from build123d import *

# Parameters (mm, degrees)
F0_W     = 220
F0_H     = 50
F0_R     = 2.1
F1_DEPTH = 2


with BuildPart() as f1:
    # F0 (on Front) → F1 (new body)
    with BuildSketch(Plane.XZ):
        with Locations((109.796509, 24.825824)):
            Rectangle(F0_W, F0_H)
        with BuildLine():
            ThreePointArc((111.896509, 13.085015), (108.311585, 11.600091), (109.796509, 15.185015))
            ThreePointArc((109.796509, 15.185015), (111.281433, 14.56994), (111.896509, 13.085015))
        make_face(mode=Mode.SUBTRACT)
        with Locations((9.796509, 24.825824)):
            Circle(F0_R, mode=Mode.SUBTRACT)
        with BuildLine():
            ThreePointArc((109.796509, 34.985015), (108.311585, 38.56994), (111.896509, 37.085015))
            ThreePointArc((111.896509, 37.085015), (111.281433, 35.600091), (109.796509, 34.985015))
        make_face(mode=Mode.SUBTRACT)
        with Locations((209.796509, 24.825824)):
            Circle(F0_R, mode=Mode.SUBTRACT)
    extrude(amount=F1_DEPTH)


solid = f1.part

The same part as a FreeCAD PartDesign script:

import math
import FreeCAD as App
import Part
import Sketcher
from FreeCAD import Vector

doc = App.newDocument("Part")
body = doc.addObject("PartDesign::Body", "Body")

# Sketch on XZ plane
sketch1 = doc.addObject("Sketcher::SketchObject", "Sketch")
body.addObject(sketch1)
sketch1.AttachmentSupport = (doc.XZ_Plane, [""])
sketch1.MapMode = "FlatFace"
sketch1.addGeometry([
    Part.LineSegment(Vector(-0.203491, 49.825824, 0), Vector(-0.203491, -0.174176, 0)),  # 0
    Part.LineSegment(Vector(-0.203491, -0.174176, 0), Vector(219.796509, -0.174176, 0)),  # 1
    Part.LineSegment(Vector(219.796509, -0.174176, 0), Vector(219.796509, 49.825824, 0)),  # 2
    Part.LineSegment(Vector(219.796509, 49.825824, 0), Vector(-0.203491, 49.825824, 0)),  # 3
    Part.Circle(Vector(9.796509, 24.825824, 0), Vector(0, 0, 1), 2.1),  # 4
    Part.ArcOfCircle(Part.Circle(Vector(109.79651, 13.085016, 0), Vector(0, 0, 1), 2.099999), math.radians(-0.000024), math.radians(90.000024)),  # 5
    Part.ArcOfCircle(Part.Circle(Vector(109.796509, 13.085015, 0), Vector(0, 0, 1), 2.1), math.radians(90.000004), math.radians(359.999996)),  # 6
    Part.Circle(Vector(209.796509, 24.825824, 0), Vector(0, 0, 1), 2.1),  # 7
    Part.ArcOfCircle(Part.Circle(Vector(109.796508, 37.085016, 0), Vector(0, 0, 1), 2.100001), math.radians(-89.999978), math.radians(-0.000022)),  # 8
    Part.ArcOfCircle(Part.Circle(Vector(109.796509, 37.085015, 0), Vector(0, 0, 1), 2.1), math.radians(-0.000004), math.radians(270.000004)),  # 9
], False)
sketch1.addConstraint([
    Sketcher.Constraint("Coincident", 0, 2, 1, 1),
    Sketcher.Constraint("Coincident", 1, 2, 2, 1),
    Sketcher.Constraint("Coincident", 2, 2, 3, 1),
    Sketcher.Constraint("Coincident", 3, 2, 0, 1),
    Sketcher.Constraint("Tangent", 5, 1, 6, 2),
    Sketcher.Constraint("Coincident", 6, 1, 5, 2),
    Sketcher.Constraint("Tangent", 8, 1, 9, 2),
    Sketcher.Constraint("Coincident", 9, 1, 8, 2),
    Sketcher.Constraint("Vertical", 0),
    Sketcher.Constraint("Horizontal", 1),
    Sketcher.Constraint("Vertical", 2),
    Sketcher.Constraint("Horizontal", 3),
    Sketcher.Constraint("Equal", 4, 5),
    Sketcher.Constraint("Equal", 6, 7),
    Sketcher.Constraint("Equal", 7, 8),
    Sketcher.Constraint("Horizontal", 4, 3, 7, 3),
    Sketcher.Constraint("Horizontal", 6, 3, 5, 1),
    Sketcher.Constraint("Horizontal", 8, 3, 9, 1),
    Sketcher.Constraint("Vertical", 6, 3, 8, 3),
    Sketcher.Constraint("Vertical", 9, 3, 6, 1),
    Sketcher.Constraint("Vertical", 6, 1, 8, 1),
    Sketcher.Constraint("Diameter", 4, 4.2),
    Sketcher.Constraint("DistanceX", 1, 1, 1, 2, 220.0),
    Sketcher.Constraint("DistanceY", 0, 2, 0, 1, 50.0),
    Sketcher.Constraint("DistanceX", 4, 3, 5, 3, 100.000001),
    Sketcher.Constraint("DistanceX", 5, 3, 7, 3, 99.999999),
    Sketcher.Constraint("DistanceY", 5, 3, 8, 3, 24.0),
    Sketcher.Constraint("DistanceX", 0, 2, 4, 3, 10.0),
    Sketcher.Constraint("DistanceY", 0, 2, 4, 3, 25.0),
    Sketcher.Constraint("DistanceX", -1, 1, 4, 3, 9.796509),
    Sketcher.Constraint("DistanceY", 5, 3, 4, 3, 11.740808),
    Sketcher.Constraint("DistanceY", -1, 1, 4, 3, 24.825824),
])
pad1 = doc.addObject("PartDesign::Pad", "Pad")
body.addObject(pad1)
pad1.Profile = sketch1
pad1.Length = 2

doc.recompute()
